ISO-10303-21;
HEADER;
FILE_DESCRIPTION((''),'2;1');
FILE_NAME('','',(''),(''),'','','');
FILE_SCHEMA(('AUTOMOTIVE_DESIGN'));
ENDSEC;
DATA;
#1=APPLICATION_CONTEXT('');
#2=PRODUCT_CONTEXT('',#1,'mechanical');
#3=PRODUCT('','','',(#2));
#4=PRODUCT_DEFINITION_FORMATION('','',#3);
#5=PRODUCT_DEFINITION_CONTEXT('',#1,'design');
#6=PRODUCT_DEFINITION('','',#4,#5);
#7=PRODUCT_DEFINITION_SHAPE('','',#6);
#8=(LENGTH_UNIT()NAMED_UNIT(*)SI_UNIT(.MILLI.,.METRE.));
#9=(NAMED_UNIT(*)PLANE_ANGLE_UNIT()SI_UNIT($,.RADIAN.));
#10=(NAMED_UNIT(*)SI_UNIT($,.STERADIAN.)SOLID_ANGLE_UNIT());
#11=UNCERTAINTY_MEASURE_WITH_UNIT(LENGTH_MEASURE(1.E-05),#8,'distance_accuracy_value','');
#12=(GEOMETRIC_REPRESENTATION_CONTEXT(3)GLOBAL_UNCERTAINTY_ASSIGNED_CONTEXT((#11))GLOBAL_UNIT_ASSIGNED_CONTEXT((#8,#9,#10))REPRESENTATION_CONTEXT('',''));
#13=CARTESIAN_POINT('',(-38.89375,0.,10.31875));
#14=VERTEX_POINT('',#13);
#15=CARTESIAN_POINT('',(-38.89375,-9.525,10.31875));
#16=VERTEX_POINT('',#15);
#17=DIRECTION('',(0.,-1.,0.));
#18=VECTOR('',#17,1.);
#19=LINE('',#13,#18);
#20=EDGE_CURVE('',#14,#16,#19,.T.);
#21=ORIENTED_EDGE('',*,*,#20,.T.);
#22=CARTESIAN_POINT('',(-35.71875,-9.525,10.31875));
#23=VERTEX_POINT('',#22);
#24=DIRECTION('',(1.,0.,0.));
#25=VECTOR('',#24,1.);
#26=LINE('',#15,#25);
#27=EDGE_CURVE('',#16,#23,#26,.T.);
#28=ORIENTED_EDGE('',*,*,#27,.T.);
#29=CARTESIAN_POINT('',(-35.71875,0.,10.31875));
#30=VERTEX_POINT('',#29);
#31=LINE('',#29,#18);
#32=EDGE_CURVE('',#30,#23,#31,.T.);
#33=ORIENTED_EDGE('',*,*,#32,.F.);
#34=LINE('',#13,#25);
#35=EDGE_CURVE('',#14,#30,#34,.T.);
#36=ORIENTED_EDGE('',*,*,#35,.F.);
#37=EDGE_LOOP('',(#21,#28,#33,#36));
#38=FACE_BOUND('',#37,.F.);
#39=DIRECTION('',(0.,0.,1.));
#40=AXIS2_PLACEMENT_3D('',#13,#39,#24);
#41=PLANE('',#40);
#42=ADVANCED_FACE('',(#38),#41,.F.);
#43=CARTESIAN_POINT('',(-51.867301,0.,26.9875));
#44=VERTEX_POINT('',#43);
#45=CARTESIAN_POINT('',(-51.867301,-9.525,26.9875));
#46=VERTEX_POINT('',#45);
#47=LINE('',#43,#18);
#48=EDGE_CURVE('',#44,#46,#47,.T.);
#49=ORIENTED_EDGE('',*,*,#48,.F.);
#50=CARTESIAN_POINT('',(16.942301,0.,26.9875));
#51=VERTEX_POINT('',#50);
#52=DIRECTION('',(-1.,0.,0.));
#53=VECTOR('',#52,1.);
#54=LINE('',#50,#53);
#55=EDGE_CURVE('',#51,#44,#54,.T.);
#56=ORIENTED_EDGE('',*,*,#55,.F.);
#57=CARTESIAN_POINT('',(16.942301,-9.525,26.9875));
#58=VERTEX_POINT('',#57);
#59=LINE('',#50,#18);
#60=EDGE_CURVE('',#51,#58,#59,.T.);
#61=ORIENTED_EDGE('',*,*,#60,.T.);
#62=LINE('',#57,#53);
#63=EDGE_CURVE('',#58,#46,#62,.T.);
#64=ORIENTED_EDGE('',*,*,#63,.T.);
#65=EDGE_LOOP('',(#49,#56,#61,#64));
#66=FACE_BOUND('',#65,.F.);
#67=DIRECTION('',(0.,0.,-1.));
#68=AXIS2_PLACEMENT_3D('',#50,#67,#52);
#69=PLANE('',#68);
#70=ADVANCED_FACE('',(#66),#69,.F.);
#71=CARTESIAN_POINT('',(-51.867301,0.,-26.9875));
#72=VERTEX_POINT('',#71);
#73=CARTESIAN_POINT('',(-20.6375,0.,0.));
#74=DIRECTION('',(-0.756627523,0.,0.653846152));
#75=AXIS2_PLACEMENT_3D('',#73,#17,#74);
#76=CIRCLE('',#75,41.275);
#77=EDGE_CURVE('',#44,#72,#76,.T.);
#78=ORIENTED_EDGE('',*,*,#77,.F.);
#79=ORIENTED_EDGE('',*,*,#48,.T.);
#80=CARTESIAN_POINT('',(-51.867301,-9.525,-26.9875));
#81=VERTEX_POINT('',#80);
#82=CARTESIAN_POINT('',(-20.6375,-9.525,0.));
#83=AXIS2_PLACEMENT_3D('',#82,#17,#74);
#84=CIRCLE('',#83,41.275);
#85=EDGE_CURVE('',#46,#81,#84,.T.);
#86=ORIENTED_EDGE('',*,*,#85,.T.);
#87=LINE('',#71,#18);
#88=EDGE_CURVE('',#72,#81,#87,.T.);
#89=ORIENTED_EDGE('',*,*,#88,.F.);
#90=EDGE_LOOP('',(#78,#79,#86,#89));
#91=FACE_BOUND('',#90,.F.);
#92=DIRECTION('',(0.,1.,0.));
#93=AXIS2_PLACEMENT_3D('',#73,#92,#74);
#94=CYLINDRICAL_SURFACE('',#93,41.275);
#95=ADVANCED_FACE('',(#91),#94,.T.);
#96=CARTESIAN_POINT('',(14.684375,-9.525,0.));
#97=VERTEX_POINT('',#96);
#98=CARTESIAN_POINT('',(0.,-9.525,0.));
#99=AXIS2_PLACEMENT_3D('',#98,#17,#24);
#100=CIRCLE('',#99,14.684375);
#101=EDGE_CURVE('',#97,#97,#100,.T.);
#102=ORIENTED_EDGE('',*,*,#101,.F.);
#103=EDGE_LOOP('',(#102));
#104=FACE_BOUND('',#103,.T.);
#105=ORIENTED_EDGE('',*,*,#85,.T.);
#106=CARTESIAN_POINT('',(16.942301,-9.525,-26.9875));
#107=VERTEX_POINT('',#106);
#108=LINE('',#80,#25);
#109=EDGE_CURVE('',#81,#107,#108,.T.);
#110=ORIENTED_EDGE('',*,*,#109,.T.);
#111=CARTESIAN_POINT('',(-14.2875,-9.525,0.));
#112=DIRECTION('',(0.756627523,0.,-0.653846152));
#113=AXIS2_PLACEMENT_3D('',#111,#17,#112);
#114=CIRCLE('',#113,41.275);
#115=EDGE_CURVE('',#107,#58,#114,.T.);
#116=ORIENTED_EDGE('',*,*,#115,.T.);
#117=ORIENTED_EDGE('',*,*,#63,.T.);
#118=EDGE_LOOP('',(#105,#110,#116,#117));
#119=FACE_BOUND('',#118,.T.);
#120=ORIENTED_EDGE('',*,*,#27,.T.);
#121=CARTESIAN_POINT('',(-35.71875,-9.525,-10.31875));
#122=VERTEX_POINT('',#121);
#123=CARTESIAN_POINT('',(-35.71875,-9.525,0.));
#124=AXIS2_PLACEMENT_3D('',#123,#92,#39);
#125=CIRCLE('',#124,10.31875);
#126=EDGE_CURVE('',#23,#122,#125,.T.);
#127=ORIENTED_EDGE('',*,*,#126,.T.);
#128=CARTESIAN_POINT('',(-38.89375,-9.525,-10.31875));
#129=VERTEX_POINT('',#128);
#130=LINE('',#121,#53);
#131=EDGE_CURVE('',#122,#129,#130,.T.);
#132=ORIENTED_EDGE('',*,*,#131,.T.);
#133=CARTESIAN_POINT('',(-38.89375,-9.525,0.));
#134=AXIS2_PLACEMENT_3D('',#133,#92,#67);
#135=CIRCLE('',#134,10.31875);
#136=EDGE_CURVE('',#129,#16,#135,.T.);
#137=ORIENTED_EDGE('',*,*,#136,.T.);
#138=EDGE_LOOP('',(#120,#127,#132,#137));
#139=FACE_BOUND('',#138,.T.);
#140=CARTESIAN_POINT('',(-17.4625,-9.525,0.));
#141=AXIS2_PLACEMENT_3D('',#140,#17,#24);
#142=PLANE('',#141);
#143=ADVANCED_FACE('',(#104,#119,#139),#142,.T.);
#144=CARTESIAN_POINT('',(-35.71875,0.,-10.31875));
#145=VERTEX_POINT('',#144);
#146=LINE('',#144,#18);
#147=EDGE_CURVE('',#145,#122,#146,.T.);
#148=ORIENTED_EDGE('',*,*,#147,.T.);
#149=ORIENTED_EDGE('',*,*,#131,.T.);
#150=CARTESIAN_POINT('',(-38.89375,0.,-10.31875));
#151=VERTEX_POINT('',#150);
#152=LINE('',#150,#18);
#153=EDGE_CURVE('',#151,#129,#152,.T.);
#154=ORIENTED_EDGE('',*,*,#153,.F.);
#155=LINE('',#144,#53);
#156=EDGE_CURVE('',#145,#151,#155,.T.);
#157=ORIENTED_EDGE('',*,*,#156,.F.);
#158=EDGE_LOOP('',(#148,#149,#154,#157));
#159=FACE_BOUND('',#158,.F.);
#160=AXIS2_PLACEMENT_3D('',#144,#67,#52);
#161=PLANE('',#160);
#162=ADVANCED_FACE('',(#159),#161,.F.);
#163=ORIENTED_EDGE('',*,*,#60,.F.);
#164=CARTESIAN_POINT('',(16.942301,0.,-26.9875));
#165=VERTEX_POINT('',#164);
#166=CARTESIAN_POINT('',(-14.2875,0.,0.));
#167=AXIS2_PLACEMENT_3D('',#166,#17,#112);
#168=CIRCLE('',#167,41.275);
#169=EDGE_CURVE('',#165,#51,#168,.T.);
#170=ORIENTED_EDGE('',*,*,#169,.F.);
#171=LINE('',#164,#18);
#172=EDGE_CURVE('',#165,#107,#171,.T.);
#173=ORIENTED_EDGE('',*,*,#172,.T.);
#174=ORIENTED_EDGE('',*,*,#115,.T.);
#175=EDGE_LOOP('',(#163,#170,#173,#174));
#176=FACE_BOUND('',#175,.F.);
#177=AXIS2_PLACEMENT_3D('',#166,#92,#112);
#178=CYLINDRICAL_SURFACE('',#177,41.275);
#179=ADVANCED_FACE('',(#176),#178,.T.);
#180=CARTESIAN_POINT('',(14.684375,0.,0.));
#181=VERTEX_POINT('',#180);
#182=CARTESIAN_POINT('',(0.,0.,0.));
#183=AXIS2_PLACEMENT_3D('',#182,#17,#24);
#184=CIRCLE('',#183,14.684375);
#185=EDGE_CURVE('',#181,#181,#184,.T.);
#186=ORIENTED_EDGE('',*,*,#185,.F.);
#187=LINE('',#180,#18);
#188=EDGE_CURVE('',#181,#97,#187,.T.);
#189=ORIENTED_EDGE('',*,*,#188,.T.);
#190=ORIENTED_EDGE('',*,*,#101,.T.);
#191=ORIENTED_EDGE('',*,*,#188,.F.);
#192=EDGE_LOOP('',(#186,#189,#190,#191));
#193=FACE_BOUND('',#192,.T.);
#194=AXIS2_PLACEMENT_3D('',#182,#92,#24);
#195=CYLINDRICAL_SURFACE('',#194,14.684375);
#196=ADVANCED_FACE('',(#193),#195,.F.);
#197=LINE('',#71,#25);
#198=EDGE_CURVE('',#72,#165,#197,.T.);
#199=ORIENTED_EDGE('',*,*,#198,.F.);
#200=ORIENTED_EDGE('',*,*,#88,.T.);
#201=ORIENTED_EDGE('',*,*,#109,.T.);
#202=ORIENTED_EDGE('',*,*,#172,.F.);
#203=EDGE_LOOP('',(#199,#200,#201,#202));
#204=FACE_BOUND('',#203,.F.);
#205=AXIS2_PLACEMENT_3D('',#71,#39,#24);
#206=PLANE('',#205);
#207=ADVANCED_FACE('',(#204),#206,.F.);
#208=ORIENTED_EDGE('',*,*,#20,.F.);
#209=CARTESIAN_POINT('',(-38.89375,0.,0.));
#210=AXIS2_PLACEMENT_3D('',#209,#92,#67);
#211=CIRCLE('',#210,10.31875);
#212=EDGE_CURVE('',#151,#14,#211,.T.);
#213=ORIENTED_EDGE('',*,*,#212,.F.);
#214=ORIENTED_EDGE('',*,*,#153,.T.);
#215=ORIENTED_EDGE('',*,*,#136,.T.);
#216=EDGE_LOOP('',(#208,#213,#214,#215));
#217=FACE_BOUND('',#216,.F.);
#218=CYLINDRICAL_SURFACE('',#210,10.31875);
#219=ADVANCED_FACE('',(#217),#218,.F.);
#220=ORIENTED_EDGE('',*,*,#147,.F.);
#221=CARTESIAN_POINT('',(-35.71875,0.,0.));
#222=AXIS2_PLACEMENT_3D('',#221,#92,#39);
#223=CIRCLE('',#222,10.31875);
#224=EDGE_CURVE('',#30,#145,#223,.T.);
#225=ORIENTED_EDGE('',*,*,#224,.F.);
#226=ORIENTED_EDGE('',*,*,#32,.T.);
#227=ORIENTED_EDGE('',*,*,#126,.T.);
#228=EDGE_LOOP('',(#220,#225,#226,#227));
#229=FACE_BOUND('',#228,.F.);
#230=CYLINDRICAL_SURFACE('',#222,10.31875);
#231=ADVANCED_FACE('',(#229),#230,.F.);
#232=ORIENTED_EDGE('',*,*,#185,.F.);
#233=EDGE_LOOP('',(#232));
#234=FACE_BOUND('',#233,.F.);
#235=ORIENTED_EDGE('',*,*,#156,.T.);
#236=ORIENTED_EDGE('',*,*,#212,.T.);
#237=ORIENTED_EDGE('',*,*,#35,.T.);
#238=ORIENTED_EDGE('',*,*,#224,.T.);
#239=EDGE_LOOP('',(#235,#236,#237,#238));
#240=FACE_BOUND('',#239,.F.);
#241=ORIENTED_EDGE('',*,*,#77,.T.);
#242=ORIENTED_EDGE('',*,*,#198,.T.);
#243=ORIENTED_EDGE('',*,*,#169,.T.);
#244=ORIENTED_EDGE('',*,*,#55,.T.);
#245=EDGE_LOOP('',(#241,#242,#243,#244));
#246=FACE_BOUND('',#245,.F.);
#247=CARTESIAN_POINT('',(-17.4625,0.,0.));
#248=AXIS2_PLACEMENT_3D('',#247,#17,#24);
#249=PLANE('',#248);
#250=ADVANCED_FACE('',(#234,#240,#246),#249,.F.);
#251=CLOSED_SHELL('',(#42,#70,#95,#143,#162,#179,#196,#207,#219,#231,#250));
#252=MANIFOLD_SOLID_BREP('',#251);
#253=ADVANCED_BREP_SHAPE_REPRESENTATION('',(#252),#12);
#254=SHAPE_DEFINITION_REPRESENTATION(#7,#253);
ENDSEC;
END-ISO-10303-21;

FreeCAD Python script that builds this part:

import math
import FreeCAD as App
import Part
import Sketcher
from FreeCAD import Vector
Q = App.Units.Quantity

doc = App.newDocument("Part")
body = doc.addObject("PartDesign::Body", "Body")

sketch1 = body.newObject("Sketcher::SketchObject", "Sketch")
sketch1.AttachmentSupport = (doc.getObject("XZ_Plane"), [""])
sketch1.MapMode = "FlatFace"
sketch1.addGeometry([
    Part.LineSegment(Vector(-51.9, -27, 0), Vector(16.9, -27, 0)),
    Part.ArcOfCircle(Part.Circle(Vector(-14.3, 0, 0), Vector(0, 0, 1), 41.3), math.radians(-41), math.radians(41)),
    Part.LineSegment(Vector(16.9, 27, 0), Vector(-51.9, 27, 0)),
    Part.ArcOfCircle(Part.Circle(Vector(-20.6, 0, 0), Vector(0, 0, 1), 41.3), math.radians(139), math.radians(221)),
    Part.LineSegment(Vector(-35.7, -10.3, 0), Vector(-38.9, -10.3, 0)),
    Part.ArcOfCircle(Part.Circle(Vector(-38.9, 0, 0), Vector(0, 0, 1), 10.3), math.radians(90), math.radians(270)),
    Part.LineSegment(Vector(-38.9, 10.3, 0), Vector(-35.7, 10.3, 0)),
    Part.ArcOfCircle(Part.Circle(Vector(-35.7, 0, 0), Vector(0, 0, 1), 10.3), math.radians(-90), math.radians(90)),
    Part.Circle(Vector(0, 0, 0), Vector(0, 0, 1), 14.7),
], False)
sketch1.addConstraint([
    Sketcher.Constraint("Coincident", 0, 2, 1, 1),
    Sketcher.Constraint("Coincident", 1, 2, 2, 1),
    Sketcher.Constraint("Coincident", 2, 2, 3, 1),
    Sketcher.Constraint("Coincident", 3, 2, 0, 1),
    Sketcher.Constraint("Tangent", 4, 2, 5, 2),
    Sketcher.Constraint("Tangent", 5, 1, 6, 1),
    Sketcher.Constraint("Tangent", 6, 2, 7, 2),
    Sketcher.Constraint("Tangent", 7, 1, 4, 1),
    Sketcher.Constraint("Horizontal", 0),
    Sketcher.Constraint("Horizontal", 2),
    Sketcher.Constraint("Horizontal", 4),
    Sketcher.Constraint("Horizontal", 6),
    Sketcher.Constraint("Coincident", 8, 3, -1, 1),
    Sketcher.Constraint("Equal", 1, 3),
    Sketcher.Constraint("Symmetric", 0, 2, 1, 2, -1),
    Sketcher.Constraint("PointOnObject", 3, 3, -1),
    Sketcher.Constraint("PointOnObject", 5, 3, -1),
    Sketcher.Constraint("Diameter", 8, Q("1.15625 in")),
    Sketcher.Constraint("Radius", 1, Q("1.625 in")),
    Sketcher.Constraint("Radius", 5, Q("0.40625 in")),
    Sketcher.Constraint("DistanceX", 4, 2, 4, 1, Q("0.125 in")),
    Sketcher.Constraint("DistanceX", 3, 3, 1, 3, Q("0.25 in")),
    Sketcher.Constraint("DistanceX", 1, 3, -1, 1, Q("0.5625 in")),
    Sketcher.Constraint("DistanceX", 5, 3, -1, 1, Q("1.53125 in")),
    Sketcher.Constraint("DistanceY", 0, 2, -1, 1, Q("1.0625 in")),
])
pad1 = body.newObject("PartDesign::Pad", "Pad")
pad1.Profile = sketch1
pad1.Length = Q("0.375 in")

doc.recompute()
